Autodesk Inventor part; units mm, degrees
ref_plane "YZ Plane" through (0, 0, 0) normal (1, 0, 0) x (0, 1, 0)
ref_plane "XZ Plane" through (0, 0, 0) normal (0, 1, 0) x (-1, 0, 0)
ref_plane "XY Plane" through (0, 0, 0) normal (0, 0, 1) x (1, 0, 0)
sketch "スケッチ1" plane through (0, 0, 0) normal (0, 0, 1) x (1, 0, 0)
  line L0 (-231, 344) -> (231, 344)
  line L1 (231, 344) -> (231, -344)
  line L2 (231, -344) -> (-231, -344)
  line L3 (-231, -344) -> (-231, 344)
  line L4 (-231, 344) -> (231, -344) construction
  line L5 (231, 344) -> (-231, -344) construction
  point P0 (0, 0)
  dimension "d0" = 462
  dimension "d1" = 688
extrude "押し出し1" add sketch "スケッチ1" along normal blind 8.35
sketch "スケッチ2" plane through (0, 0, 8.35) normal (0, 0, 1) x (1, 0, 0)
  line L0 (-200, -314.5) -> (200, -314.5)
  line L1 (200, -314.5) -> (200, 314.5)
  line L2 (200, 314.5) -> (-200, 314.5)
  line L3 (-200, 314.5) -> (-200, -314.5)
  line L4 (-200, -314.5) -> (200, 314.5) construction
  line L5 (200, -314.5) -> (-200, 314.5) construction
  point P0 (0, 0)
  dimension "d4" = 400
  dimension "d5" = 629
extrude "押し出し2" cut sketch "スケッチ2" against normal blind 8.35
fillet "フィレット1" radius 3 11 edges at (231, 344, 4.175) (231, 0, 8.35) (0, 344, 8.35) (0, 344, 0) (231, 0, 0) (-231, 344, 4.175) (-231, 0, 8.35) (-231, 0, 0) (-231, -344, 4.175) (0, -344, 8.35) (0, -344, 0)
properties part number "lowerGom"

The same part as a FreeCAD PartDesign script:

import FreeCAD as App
import Part
import Sketcher
from FreeCAD import Vector


def edges_at(feature, points):
    """Names of the edges that pass closest to the given points."""
    edges = feature.Shape.Edges
    near = lambda p: min(range(len(edges)), key=lambda i: edges[i].distToShape(Part.Vertex(*p))[0])
    return sorted({f"Edge{near(p) + 1}" for p in points})

doc = App.newDocument("Part")
body = doc.addObject("PartDesign::Body", "Body")

# Sketch on XY plane
sketch1 = body.newObject("Sketcher::SketchObject", "Sketch")
sketch1.AttachmentSupport = (doc.getObject("XY_Plane"), [""])
sketch1.MapMode = "FlatFace"
sketch1.addGeometry(Part.LineSegment(Vector(231, 344, 0), Vector(-231, 344, 0)), False)
sketch1.addGeometry(Part.LineSegment(Vector(-231, 344, 0), Vector(-231, -344, 0)), False)
sketch1.addGeometry(Part.LineSegment(Vector(-231, -344, 0), Vector(231, -344, 0)), False)
sketch1.addGeometry(Part.LineSegment(Vector(231, -344, 0), Vector(231, 344, 0)), False)
sketch1.addConstraint(Sketcher.Constraint("Coincident", 0, 2, 1, 1))
sketch1.addConstraint(Sketcher.Constraint("Coincident", 1, 2, 2, 1))
sketch1.addConstraint(Sketcher.Constraint("Coincident", 2, 2, 3, 1))
sketch1.addConstraint(Sketcher.Constraint("Coincident", 3, 2, 0, 1))
sketch1.addConstraint(Sketcher.Constraint("Horizontal", 0))
sketch1.addConstraint(Sketcher.Constraint("Vertical", 1))
sketch1.addConstraint(Sketcher.Constraint("Horizontal", 2))
sketch1.addConstraint(Sketcher.Constraint("Vertical", 3))
sketch1.addConstraint(Sketcher.Constraint("Symmetric", 0, 2, 2, 2, -1, 1))
sketch1.addConstraint(Sketcher.Constraint("DistanceX", 0, 2, 0, 1, 462.0))
sketch1.addConstraint(Sketcher.Constraint("DistanceY", 1, 2, 1, 1, 688.0))
pad1 = body.newObject("PartDesign::Pad", "Pad")
pad1.Profile = sketch1
pad1.Length = 8.35

# Sketch on XY plane
sketch2 = body.newObject("Sketcher::SketchObject", "Sketch001")
sketch2.AttachmentSupport = (doc.getObject("XY_Plane"), [""])
sketch2.MapMode = "FlatFace"
sketch2.AttachmentOffset = App.Placement(Vector(0, 0, 8.35), App.Rotation())
sketch2.addGeometry(Part.LineSegment(Vector(-200, 314, 0), Vector(-200, -314, 0)), False)
sketch2.addGeometry(Part.LineSegment(Vector(-200, -314, 0), Vector(200, -314, 0)), False)
sketch2.addGeometry(Part.LineSegment(Vector(200, -314, 0), Vector(200, 314, 0)), False)
sketch2.addGeometry(Part.LineSegment(Vector(200, 314, 0), Vector(-200, 314, 0)), False)
sketch2.addConstraint(Sketcher.Constraint("Coincident", 0, 2, 1, 1))
sketch2.addConstraint(Sketcher.Constraint("Coincident", 1, 2, 2, 1))
sketch2.addConstraint(Sketcher.Constraint("Coincident", 2, 2, 3, 1))
sketch2.addConstraint(Sketcher.Constraint("Coincident", 3, 2, 0, 1))
sketch2.addConstraint(Sketcher.Constraint("Vertical", 0))
sketch2.addConstraint(Sketcher.Constraint("Horizontal", 1))
sketch2.addConstraint(Sketcher.Constraint("Vertical", 2))
sketch2.addConstraint(Sketcher.Constraint("Horizontal", 3))
sketch2.addConstraint(Sketcher.Constraint("Symmetric", 0, 2, 2, 2, -1, 1))
sketch2.addConstraint(Sketcher.Constraint("DistanceX", 1, 1, 1, 2, 400.0))
sketch2.addConstraint(Sketcher.Constraint("DistanceY", 0, 2, 0, 1, 629.0))
pocket1 = body.newObject("PartDesign::Pocket", "Pocket")
pocket1.Profile = sketch2
pocket1.Length = 8.35
doc.recompute()

fillet = body.newObject("PartDesign::Fillet", "Fillet")
fillet.Base = (pocket1, edges_at(pocket1, [
    (231, 344, 4.175),
    (231, 0, 8.35),
    (0, 344, 8.35),
    (0, 344, 0),
    (231, 0, 0),
    (-231, 344, 4.175),
    (-231, 0, 8.35),
    (-231, 0, 0),
    (-231, -344, 4.175),
    (0, -344, 8.35),
    (0, -344, 0),
]))
fillet.Radius = 3

doc.recompute()
